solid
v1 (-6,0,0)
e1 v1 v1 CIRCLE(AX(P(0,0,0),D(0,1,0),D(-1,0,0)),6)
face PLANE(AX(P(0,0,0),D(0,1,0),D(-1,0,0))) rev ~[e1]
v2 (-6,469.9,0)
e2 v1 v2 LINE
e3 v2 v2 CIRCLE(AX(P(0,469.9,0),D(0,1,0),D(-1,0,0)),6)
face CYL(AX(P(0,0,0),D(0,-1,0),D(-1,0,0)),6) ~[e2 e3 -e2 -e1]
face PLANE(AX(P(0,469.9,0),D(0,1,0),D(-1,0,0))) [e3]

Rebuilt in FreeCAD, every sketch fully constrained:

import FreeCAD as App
import Part
import Sketcher
Q = App.Units.Quantity

doc = App.newDocument("Part")
body = doc.addObject("PartDesign::Body", "Body")

# Sketch on XZ plane
sketch1 = body.newObject("Sketcher::SketchObject", "Sketch")
sketch1.AttachmentSupport = (doc.getObject("XZ_Plane"), [""])
sketch1.MapMode = "FlatFace"
sketch1.addGeometry(Part.Circle(App.Vector(0, 0, 0), App.Vector(0, 0, 1), 6), False)
sketch1.addConstraint([
    Sketcher.Constraint("Coincident", 0, 3, -1, 1),
    Sketcher.Constraint("Diameter", 0, Q("12 mm")),
])
pad1 = body.newObject("PartDesign::Pad", "Pad")
pad1.Profile = sketch1
pad1.Length = 469.9
pad1.Reversed = True

doc.recompute()
